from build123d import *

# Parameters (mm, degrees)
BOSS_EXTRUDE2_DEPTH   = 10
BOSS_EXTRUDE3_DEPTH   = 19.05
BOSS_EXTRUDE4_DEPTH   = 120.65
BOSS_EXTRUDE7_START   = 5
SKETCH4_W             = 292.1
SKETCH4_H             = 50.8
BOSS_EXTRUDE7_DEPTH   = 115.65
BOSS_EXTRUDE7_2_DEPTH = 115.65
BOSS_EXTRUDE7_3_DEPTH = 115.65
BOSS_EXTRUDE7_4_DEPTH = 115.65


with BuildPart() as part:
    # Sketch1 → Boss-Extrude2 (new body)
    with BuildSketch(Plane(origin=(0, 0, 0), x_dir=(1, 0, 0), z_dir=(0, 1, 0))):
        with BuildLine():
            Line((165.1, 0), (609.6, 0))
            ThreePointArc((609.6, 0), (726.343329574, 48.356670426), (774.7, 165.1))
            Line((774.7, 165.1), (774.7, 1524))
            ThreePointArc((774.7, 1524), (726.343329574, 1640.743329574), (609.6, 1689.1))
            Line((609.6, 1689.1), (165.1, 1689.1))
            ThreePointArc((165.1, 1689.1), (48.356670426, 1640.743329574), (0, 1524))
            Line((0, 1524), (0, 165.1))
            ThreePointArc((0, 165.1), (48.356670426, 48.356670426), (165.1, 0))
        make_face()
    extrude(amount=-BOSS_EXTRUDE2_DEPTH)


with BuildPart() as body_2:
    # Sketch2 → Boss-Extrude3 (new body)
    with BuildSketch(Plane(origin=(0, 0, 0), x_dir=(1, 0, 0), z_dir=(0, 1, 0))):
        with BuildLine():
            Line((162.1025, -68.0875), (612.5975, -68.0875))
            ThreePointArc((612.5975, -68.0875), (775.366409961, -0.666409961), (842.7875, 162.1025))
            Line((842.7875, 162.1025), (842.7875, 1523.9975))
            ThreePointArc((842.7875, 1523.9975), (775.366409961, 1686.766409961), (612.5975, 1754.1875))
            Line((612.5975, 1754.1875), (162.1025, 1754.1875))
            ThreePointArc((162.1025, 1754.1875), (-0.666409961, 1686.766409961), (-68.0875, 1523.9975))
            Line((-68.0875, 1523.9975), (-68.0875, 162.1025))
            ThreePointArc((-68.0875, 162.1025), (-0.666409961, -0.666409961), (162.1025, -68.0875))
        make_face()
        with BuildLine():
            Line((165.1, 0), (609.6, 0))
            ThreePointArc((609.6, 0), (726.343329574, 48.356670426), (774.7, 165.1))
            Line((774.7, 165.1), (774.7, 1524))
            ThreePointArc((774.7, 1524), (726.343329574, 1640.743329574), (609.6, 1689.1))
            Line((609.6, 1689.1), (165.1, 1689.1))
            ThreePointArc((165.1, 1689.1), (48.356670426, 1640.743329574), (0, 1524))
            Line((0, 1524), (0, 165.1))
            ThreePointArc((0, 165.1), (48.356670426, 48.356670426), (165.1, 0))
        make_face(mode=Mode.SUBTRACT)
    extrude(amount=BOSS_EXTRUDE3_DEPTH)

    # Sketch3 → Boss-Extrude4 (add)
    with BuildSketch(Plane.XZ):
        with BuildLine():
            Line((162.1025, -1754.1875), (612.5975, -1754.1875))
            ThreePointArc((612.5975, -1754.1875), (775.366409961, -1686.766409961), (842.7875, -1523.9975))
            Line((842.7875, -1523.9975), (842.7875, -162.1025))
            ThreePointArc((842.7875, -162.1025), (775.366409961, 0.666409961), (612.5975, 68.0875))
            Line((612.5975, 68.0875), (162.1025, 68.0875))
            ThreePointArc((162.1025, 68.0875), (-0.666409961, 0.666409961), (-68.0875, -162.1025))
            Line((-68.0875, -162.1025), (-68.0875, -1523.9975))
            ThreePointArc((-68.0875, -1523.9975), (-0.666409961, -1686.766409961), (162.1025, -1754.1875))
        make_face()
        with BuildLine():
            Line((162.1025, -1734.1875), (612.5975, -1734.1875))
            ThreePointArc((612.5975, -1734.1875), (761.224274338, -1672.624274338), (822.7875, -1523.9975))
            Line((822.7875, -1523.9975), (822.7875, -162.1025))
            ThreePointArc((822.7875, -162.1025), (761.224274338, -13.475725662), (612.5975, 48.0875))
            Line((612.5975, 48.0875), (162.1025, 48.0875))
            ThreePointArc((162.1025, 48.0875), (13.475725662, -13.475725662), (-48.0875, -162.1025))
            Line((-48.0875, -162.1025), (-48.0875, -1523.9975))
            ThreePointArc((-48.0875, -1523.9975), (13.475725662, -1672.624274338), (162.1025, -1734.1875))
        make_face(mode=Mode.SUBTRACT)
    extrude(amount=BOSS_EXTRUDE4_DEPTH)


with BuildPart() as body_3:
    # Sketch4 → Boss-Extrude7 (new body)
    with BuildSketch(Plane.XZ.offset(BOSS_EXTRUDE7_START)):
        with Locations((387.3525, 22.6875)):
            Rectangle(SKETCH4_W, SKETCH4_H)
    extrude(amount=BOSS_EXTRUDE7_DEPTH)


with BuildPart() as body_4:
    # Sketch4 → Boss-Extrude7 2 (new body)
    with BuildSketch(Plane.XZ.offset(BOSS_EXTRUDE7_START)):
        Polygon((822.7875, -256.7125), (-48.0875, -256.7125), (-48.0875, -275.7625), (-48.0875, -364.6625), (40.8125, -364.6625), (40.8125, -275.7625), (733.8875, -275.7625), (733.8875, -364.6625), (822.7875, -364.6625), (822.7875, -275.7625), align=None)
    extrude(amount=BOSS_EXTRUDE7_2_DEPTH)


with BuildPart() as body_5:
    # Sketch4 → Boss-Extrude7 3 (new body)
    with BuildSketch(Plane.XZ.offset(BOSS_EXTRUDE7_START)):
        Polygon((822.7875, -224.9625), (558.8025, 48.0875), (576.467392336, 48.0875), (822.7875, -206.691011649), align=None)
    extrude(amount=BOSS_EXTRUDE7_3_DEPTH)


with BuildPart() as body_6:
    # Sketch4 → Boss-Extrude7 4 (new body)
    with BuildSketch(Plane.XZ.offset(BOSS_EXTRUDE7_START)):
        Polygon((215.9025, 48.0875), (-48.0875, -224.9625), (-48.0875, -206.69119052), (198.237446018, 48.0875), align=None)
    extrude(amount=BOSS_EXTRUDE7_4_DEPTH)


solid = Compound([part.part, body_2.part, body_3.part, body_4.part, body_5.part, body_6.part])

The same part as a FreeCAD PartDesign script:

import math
import FreeCAD as App
import Part
import Sketcher

V = App.Vector
Q = App.Units.Quantity

doc = App.newDocument("Part")
body = doc.addObject("PartDesign::Body", "Body")

# Sketch on XZ plane
sketch1 = doc.addObject("Sketcher::SketchObject", "Sketch")
body.addObject(sketch1)
sketch1.AttachmentSupport = (doc.XZ_Plane, [""])
sketch1.MapMode = "FlatFace"
sketch1.addGeometry([
    Part.LineSegment(V(165, 0, 0), V(610, 0, 0)),  # 0
    Part.ArcOfCircle(Part.Circle(V(610, -165, 0), V(0, 0, 1), 165), math.radians(0), math.radians(90)),  # 1
    Part.LineSegment(V(775, -165, 0), V(775, -1524, 0)),  # 2
    Part.ArcOfCircle(Part.Circle(V(610, -1524, 0), V(0, 0, 1), 165), math.radians(-90), math.radians(0)),  # 3
    Part.LineSegment(V(610, -1689, 0), V(165, -1689, 0)),  # 4
    Part.ArcOfCircle(Part.Circle(V(165, -1524, 0), V(0, 0, 1), 165), math.radians(180), math.radians(270)),  # 5
    Part.LineSegment(V(0, -1524, 0), V(0, -165, 0)),  # 6
    Part.ArcOfCircle(Part.Circle(V(165, -165, 0), V(0, 0, 1), 165), math.radians(90), math.radians(180)),  # 7
], False)
sketch1.addConstraint([
    Sketcher.Constraint("Tangent", 0, 2, 1, 2),
    Sketcher.Constraint("Tangent", 1, 1, 2, 1),
    Sketcher.Constraint("Tangent", 2, 2, 3, 2),
    Sketcher.Constraint("Tangent", 3, 1, 4, 1),
    Sketcher.Constraint("Tangent", 4, 2, 5, 2),
    Sketcher.Constraint("Tangent", 5, 1, 6, 1),
    Sketcher.Constraint("Tangent", 6, 2, 7, 2),
    Sketcher.Constraint("Tangent", 7, 1, 0, 1),
    Sketcher.Constraint("Horizontal", 0),
    Sketcher.Constraint("Vertical", 2),
    Sketcher.Constraint("Horizontal", 4),
    Sketcher.Constraint("Vertical", 6),
    Sketcher.Constraint("Equal", 1, 3),
    Sketcher.Constraint("Equal", 3, 5),
    Sketcher.Constraint("Equal", 5, 7),
    Sketcher.Constraint("PointOnObject", 0, 2, -1),
    Sketcher.Constraint("PointOnObject", 5, 1, -2),
    Sketcher.Constraint("Radius", 1, Q("6.5 in")),
    Sketcher.Constraint("DistanceX", 0, 1, 0, 2, Q("17.5 in")),
    Sketcher.Constraint("DistanceY", 2, 2, 2, 1, Q("53.5 in")),
])
pad1 = doc.addObject("PartDesign::Pad", "Pad")
body.addObject(pad1)
pad1.Profile = sketch1
pad1.Length = 10
body2 = doc.addObject("PartDesign::Body", "Body001")

# Sketch on XZ plane
sketch2 = doc.addObject("Sketcher::SketchObject", "Sketch001")
body2.addObject(sketch2)
sketch2.AttachmentSupport = (doc.getObject("XZ_Plane001"), [""])
sketch2.MapMode = "FlatFace"
sketch2.addGeometry([
    Part.LineSegment(V(162, 68, 0), V(613, 68, 0)),  # 0
    Part.ArcOfCircle(Part.Circle(V(613, -162, 0), V(0, 0, 1), 230), math.radians(0), math.radians(90)),  # 1
    Part.LineSegment(V(843, -162, 0), V(843, -1524, 0)),  # 2
    Part.ArcOfCircle(Part.Circle(V(613, -1524, 0), V(0, 0, 1), 230), math.radians(-90), math.radians(0)),  # 3
    Part.LineSegment(V(613, -1754, 0), V(162, -1754, 0)),  # 4
    Part.ArcOfCircle(Part.Circle(V(162, -1524, 0), V(0, 0, 1), 230), math.radians(-180), math.radians(-90)),  # 5
    Part.LineSegment(V(-68, -1524, 0), V(-68, -162, 0)),  # 6
    Part.ArcOfCircle(Part.Circle(V(162, -162, 0), V(0, 0, 1), 230), math.radians(90), math.radians(180)),  # 7
    Part.LineSegment(V(610, 0, 0), V(165, 0, 0)),  # 8
    Part.ArcOfCircle(Part.Circle(V(165, -165, 0), V(0, 0, 1), 165), math.radians(90), math.radians(180)),  # 9
    Part.LineSegment(V(0, -165, 0), V(0, -1524, 0)),  # 10
    Part.ArcOfCircle(Part.Circle(V(165, -1524, 0), V(0, 0, 1), 165), math.radians(180), math.radians(270)),  # 11
    Part.LineSegment(V(165, -1689, 0), V(610, -1689, 0)),  # 12
    Part.ArcOfCircle(Part.Circle(V(610, -1524, 0), V(0, 0, 1), 165), math.radians(-90), math.radians(0)),  # 13
    Part.LineSegment(V(775, -1524, 0), V(775, -165, 0)),  # 14
    Part.ArcOfCircle(Part.Circle(V(610, -165, 0), V(0, 0, 1), 165), math.radians(0), math.radians(90)),  # 15
], False)
sketch2.addConstraint([
    Sketcher.Constraint("Tangent", 0, 2, 1, 2),
    Sketcher.Constraint("Tangent", 1, 1, 2, 1),
    Sketcher.Constraint("Tangent", 2, 2, 3, 2),
    Sketcher.Constraint("Tangent", 3, 1, 4, 1),
    Sketcher.Constraint("Tangent", 4, 2, 5, 2),
    Sketcher.Constraint("Tangent", 5, 1, 6, 1),
    Sketcher.Constraint("Tangent", 6, 2, 7, 2),
    Sketcher.Constraint("Tangent", 7, 1, 0, 1),
    Sketcher.Constraint("Tangent", 8, 2, 9, 1),
    Sketcher.Constraint("Tangent", 9, 2, 10, 1),
    Sketcher.Constraint("Tangent", 10, 2, 11, 1),
    Sketcher.Constraint("Tangent", 11, 2, 12, 1),
    Sketcher.Constraint("Tangent", 12, 2, 13, 1),
    Sketcher.Constraint("Tangent", 13, 2, 14, 1),
    Sketcher.Constraint("Tangent", 14, 2, 15, 1),
    Sketcher.Constraint("Tangent", 15, 2, 8, 1),
    Sketcher.Constraint("Horizontal", 0),
    Sketcher.Constraint("Vertical", 2),
    Sketcher.Constraint("Horizontal", 4),
    Sketcher.Constraint("Vertical", 6),
    Sketcher.Constraint("Horizontal", 8),
    Sketcher.Constraint("Vertical", 10),
    Sketcher.Constraint("Horizontal", 12),
    Sketcher.Constraint("Vertical", 14),
    Sketcher.Constraint("Equal", 1, 3),
    Sketcher.Constraint("Equal", 3, 5),
    Sketcher.Constraint("Equal", 5, 7),
    Sketcher.Constraint("Equal", 9, 11),
    Sketcher.Constraint("Equal", 11, 13),
    Sketcher.Constraint("Equal", 13, 15),
    Sketcher.Constraint("PointOnObject", 8, 2, -1),
    Sketcher.Constraint("PointOnObject", 9, 2, -2),
    Sketcher.Constraint("Radius", 9, Q("6.5 in")),
    Sketcher.Constraint("DistanceX", 8, 2, 8, 1, Q("17.5 in")),
    Sketcher.Constraint("DistanceY", 10, 2, 10, 1, Q("53.5 in")),
    Sketcher.Constraint("Radius", 1, 230.19),
    Sketcher.Constraint("DistanceY", 3, 1, -1, 1, Q("69.0625 in")),
    Sketcher.Constraint("DistanceX", 0, 1, 0, 2, 450.495),
    Sketcher.Constraint("DistanceY", 2, 2, 2, 1, 1361.895),
    Sketcher.Constraint("DistanceX", -1, 1, 1, 3, 612.5975),
])
pad2 = doc.addObject("PartDesign::Pad", "Pad001")
body2.addObject(pad2)
pad2.Profile = sketch2
pad2.Length = Q("0.75 in")
pad2.Reversed = True

# Sketch on XZ plane
sketch3 = doc.addObject("Sketcher::SketchObject", "Sketch002")
body2.addObject(sketch3)
sketch3.AttachmentSupport = (doc.getObject("XZ_Plane001"), [""])
sketch3.MapMode = "FlatFace"
sketch3.addGeometry([
    Part.LineSegment(V(162, -1754, 0), V(613, -1754, 0)),  # 0
    Part.ArcOfCircle(Part.Circle(V(613, -1524, 0), V(0, 0, 1), 230), math.radians(-90), math.radians(0)),  # 1
    Part.LineSegment(V(843, -1524, 0), V(843, -162, 0)),  # 2
    Part.ArcOfCircle(Part.Circle(V(613, -162, 0), V(0, 0, 1), 230), math.radians(0), math.radians(90)),  # 3
    Part.LineSegment(V(613, 68, 0), V(162, 68, 0)),  # 4
    Part.ArcOfCircle(Part.Circle(V(162, -162, 0), V(0, 0, 1), 230), math.radians(90), math.radians(180)),  # 5
    Part.LineSegment(V(-68, -162, 0), V(-68, -1524, 0)),  # 6
    Part.ArcOfCircle(Part.Circle(V(162, -1524, 0), V(0, 0, 1), 230), math.radians(-180), math.radians(-90)),  # 7
    Part.LineSegment(V(613, -1734, 0), V(162, -1734, 0)),  # 8
    Part.ArcOfCircle(Part.Circle(V(162, -1524, 0), V(0, 0, 1), 210), math.radians(180), math.radians(270)),  # 9
    Part.LineSegment(V(-48, -1524, 0), V(-48, -162, 0)),  # 10
    Part.ArcOfCircle(Part.Circle(V(162, -162, 0), V(0, 0, 1), 210), math.radians(90), math.radians(180)),  # 11
    Part.LineSegment(V(162, 48, 0), V(613, 48, 0)),  # 12
    Part.ArcOfCircle(Part.Circle(V(613, -162, 0), V(0, 0, 1), 210), math.radians(0), math.radians(90)),  # 13
    Part.LineSegment(V(823, -162, 0), V(823, -1524, 0)),  # 14
    Part.ArcOfCircle(Part.Circle(V(613, -1524, 0), V(0, 0, 1), 210), math.radians(-90), math.radians(0)),  # 15
], False)
sketch3.addConstraint([
    Sketcher.Constraint("Tangent", 0, 2, 1, 1),
    Sketcher.Constraint("Tangent", 1, 2, 2, 1),
    Sketcher.Constraint("Tangent", 2, 2, 3, 1),
    Sketcher.Constraint("Tangent", 3, 2, 4, 1),
    Sketcher.Constraint("Tangent", 4, 2, 5, 1),
    Sketcher.Constraint("Tangent", 5, 2, 6, 1),
    Sketcher.Constraint("Tangent", 6, 2, 7, 1),
    Sketcher.Constraint("Tangent", 7, 2, 0, 1),
    Sketcher.Constraint("Tangent", 8, 2, 9, 2),
    Sketcher.Constraint("Tangent", 9, 1, 10, 1),
    Sketcher.Constraint("Tangent", 10, 2, 11, 2),
    Sketcher.Constraint("Tangent", 11, 1, 12, 1),
    Sketcher.Constraint("Tangent", 12, 2, 13, 2),
    Sketcher.Constraint("Tangent", 13, 1, 14, 1),
    Sketcher.Constraint("Tangent", 14, 2, 15, 2),
    Sketcher.Constraint("Tangent", 15, 1, 8, 1),
    Sketcher.Constraint("Horizontal", 0),
    Sketcher.Constraint("Vertical", 2),
    Sketcher.Constraint("Horizontal", 4),
    Sketcher.Constraint("Vertical", 6),
    Sketcher.Constraint("Horizontal", 8),
    Sketcher.Constraint("Vertical", 10),
    Sketcher.Constraint("Horizontal", 12),
    Sketcher.Constraint("Vertical", 14),
    Sketcher.Constraint("Coincident", 9, 3, 7, 3),
    Sketcher.Constraint("Coincident", 11, 3, 5, 3),
    Sketcher.Constraint("Coincident", 13, 3, 3, 3),
    Sketcher.Constraint("Equal", 1, 3),
    Sketcher.Constraint("Equal", 3, 5),
    Sketcher.Constraint("Equal", 5, 7),
    Sketcher.Constraint("Equal", 13, 15),
    Sketcher.Constraint("Radius", 1, 230.19),
    Sketcher.Constraint("Radius", 9, 210.19),
    Sketcher.Constraint("DistanceY", 0, 2, -1, 1, Q("69.0625 in")),
    Sketcher.Constraint("DistanceX", 0, 1, 0, 2, 450.495),
    Sketcher.Constraint("DistanceY", 2, 1, 2, 2, 1361.895),
    Sketcher.Constraint("DistanceX", -1, 1, 1, 3, 612.5975),
])
pad3 = doc.addObject("PartDesign::Pad", "Pad002")
body2.addObject(pad3)
pad3.Profile = sketch3
pad3.Length = Q("4.75 in")
body3 = doc.addObject("PartDesign::Body", "Body002")

# Sketch on XZ plane
sketch4 = doc.addObject("Sketcher::SketchObject", "Sketch003")
body3.addObject(sketch4)
sketch4.AttachmentSupport = (doc.getObject("XZ_Plane002"), [""])
sketch4.MapMode = "FlatFace"
sketch4.AttachmentOffset = App.Placement(V(0, 0, 5), App.Rotation())
sketch4.addGeometry([
    Part.LineSegment(V(241, 48, 0), V(241, -3, 0)),
    Part.LineSegment(V(241, -3, 0), V(533, -3, 0)),
    Part.LineSegment(V(533, -3, 0), V(533, 48, 0)),
    Part.LineSegment(V(533, 48, 0), V(241, 48, 0)),
], False)
sketch4.addConstraint([
    Sketcher.Constraint("Coincident", 0, 2, 1, 1),
    Sketcher.Constraint("Coincident", 1, 2, 2, 1),
    Sketcher.Constraint("Coincident", 2, 2, 3, 1),
    Sketcher.Constraint("Coincident", 3, 2, 0, 1),
    Sketcher.Constraint("Vertical", 0),
    Sketcher.Constraint("Horizontal", 1),
    Sketcher.Constraint("Vertical", 2),
    Sketcher.Constraint("Horizontal", 3),
    Sketcher.Constraint("DistanceY", 0, 2, 0, 1, Q("2 in")),
    Sketcher.Constraint("DistanceX", 1, 1, 1, 2, Q("11.5 in")),
    Sketcher.Constraint("DistanceX", -1, 1, 0, 2, 241.3025),
    Sketcher.Constraint("DistanceY", 0, 2, -1, 1, 2.7125),
])
pad4 = doc.addObject("PartDesign::Pad", "Pad003")
body3.addObject(pad4)
pad4.Profile = sketch4
pad4.Length = 115.65
body4 = doc.addObject("PartDesign::Body", "Body003")

# Sketch on XZ plane
sketch5 = doc.addObject("Sketcher::SketchObject", "Sketch004")
body4.addObject(sketch5)
sketch5.AttachmentSupport = (doc.getObject("XZ_Plane003"), [""])
sketch5.MapMode = "FlatFace"
sketch5.AttachmentOffset = App.Placement(V(0, 0, 5), App.Rotation())
sketch5.addGeometry([
    Part.LineSegment(V(823, -257, 0), V(-48, -257, 0)),  # 0
    Part.LineSegment(V(-48, -257, 0), V(-48, -365, 0)),  # 1
    Part.LineSegment(V(-48, -365, 0), V(41, -365, 0)),  # 2
    Part.LineSegment(V(41, -365, 0), V(41, -276, 0)),  # 3
    Part.LineSegment(V(41, -276, 0), V(734, -276, 0)),  # 4
    Part.LineSegment(V(734, -276, 0), V(734, -365, 0)),  # 5
    Part.LineSegment(V(734, -365, 0), V(823, -365, 0)),  # 6
    Part.LineSegment(V(823, -365, 0), V(823, -257, 0)),  # 7
], False)
sketch5.addConstraint([
    Sketcher.Constraint("Coincident", 0, 2, 1, 1),
    Sketcher.Constraint("Coincident", 1, 2, 2, 1),
    Sketcher.Constraint("Coincident", 2, 2, 3, 1),
    Sketcher.Constraint("Coincident", 3, 2, 4, 1),
    Sketcher.Constraint("Coincident", 4, 2, 5, 1),
    Sketcher.Constraint("Coincident", 5, 2, 6, 1),
    Sketcher.Constraint("Coincident", 6, 2, 7, 1),
    Sketcher.Constraint("Coincident", 7, 2, 0, 1),
    Sketcher.Constraint("Horizontal", 0),
    Sketcher.Constraint("Vertical", 1),
    Sketcher.Constraint("Horizontal", 2),
    Sketcher.Constraint("Vertical", 3),
    Sketcher.Constraint("Horizontal", 4),
    Sketcher.Constraint("Vertical", 5),
    Sketcher.Constraint("Horizontal", 6),
    Sketcher.Constraint("Vertical", 7),
    Sketcher.Constraint("Horizontal", 2, 2, 5, 2),
    Sketcher.Constraint("Equal", 2, 6),
    Sketcher.Constraint("Equal", 6, 3),
    Sketcher.Constraint("DistanceX", 2, 1, 2, 2, Q("3.5 in")),
    Sketcher.Constraint("DistanceY", 1, 2, 1, 1, Q("4.25 in")),
    Sketcher.Constraint("DistanceX", 0, 2, 0, 1, 870.875),
    Sketcher.Constraint("DistanceX", 0, 2, -1, 1, 48.0875),
    Sketcher.Constraint("DistanceY", 0, 2, -1, 1, 256.7125),
])
pad5 = doc.addObject("PartDesign::Pad", "Pad004")
body4.addObject(pad5)
pad5.Profile = sketch5
pad5.Length = 115.65
body5 = doc.addObject("PartDesign::Body", "Body004")

# Sketch on XZ plane
sketch6 = doc.addObject("Sketcher::SketchObject", "Sketch005")
body5.addObject(sketch6)
sketch6.AttachmentSupport = (doc.getObject("XZ_Plane004"), [""])
sketch6.MapMode = "FlatFace"
sketch6.AttachmentOffset = App.Placement(V(0, 0, 5), App.Rotation())
sketch6.addGeometry([
    Part.LineSegment(V(559, 48, 0), V(823, -225, 0)),
    Part.LineSegment(V(823, -225, 0), V(823, -207, 0)),
    Part.LineSegment(V(823, -207, 0), V(576, 48, 0)),
    Part.LineSegment(V(576, 48, 0), V(559, 48, 0)),
], False)
sketch6.addConstraint([
    Sketcher.Constraint("Coincident", 0, 2, 1, 1),
    Sketcher.Constraint("Coincident", 1, 2, 2, 1),
    Sketcher.Constraint("Coincident", 2, 2, 3, 1),
    Sketcher.Constraint("Coincident", 3, 2, 0, 1),
    Sketcher.Constraint("Vertical", 1),
    Sketcher.Constraint("Horizontal", 3),
    Sketcher.Constraint("Parallel", 0, 2),
    Sketcher.Constraint("DistanceY", 0, 2, 2, 2, Q("10.75 in")),
    Sketcher.Constraint("DistanceY", 1, 1, 1, 2, 18.271488),
    Sketcher.Constraint("DistanceX", -1, 1, 0, 2, 822.7875),
    Sketcher.Constraint("DistanceY", 0, 2, -1, 1, 224.9625),
    Sketcher.Constraint("DistanceX", -1, 1, 3, 2, 558.8025),
])
pad6 = doc.addObject("PartDesign::Pad", "Pad005")
body5.addObject(pad6)
pad6.Profile = sketch6
pad6.Length = 115.65
body6 = doc.addObject("PartDesign::Body", "Body005")

# Sketch on XZ plane
sketch7 = doc.addObject("Sketcher::SketchObject", "Sketch006")
body6.addObject(sketch7)
sketch7.AttachmentSupport = (doc.getObject("XZ_Plane005"), [""])
sketch7.MapMode = "FlatFace"
sketch7.AttachmentOffset = App.Placement(V(0, 0, 5), App.Rotation())
sketch7.addGeometry([
    Part.LineSegment(V(-48, -225, 0), V(216, 48, 0)),
    Part.LineSegment(V(216, 48, 0), V(198, 48, 0)),
    Part.LineSegment(V(198, 48, 0), V(-48, -207, 0)),
    Part.LineSegment(V(-48, -207, 0), V(-48, -225, 0)),
], False)
sketch7.addConstraint([
    Sketcher.Constraint("Coincident", 0, 2, 1, 1),
    Sketcher.Constraint("Coincident", 1, 2, 2, 1),
    Sketcher.Constraint("Coincident", 2, 2, 3, 1),
    Sketcher.Constraint("Coincident", 3, 2, 0, 1),
    Sketcher.Constraint("Horizontal", 1),
    Sketcher.Constraint("Vertical", 3),
    Sketcher.Constraint("Parallel", 0, 2),
    Sketcher.Constraint("DistanceY", 3, 2, 1, 2, Q("10.75 in")),
    Sketcher.Constraint("Distance", 2, 354.384199),
    Sketcher.Constraint("DistanceY", 3, 2, 3, 1, 18.271309),
    Sketcher.Constraint("DistanceX", -1, 1, 0, 2, 215.9025),
    Sketcher.Constraint("DistanceY", -1, 1, 0, 2, 48.0875),
])
pad7 = doc.addObject("PartDesign::Pad", "Pad006")
body6.addObject(pad7)
pad7.Profile = sketch7
pad7.Length = 115.65

doc.recompute()
